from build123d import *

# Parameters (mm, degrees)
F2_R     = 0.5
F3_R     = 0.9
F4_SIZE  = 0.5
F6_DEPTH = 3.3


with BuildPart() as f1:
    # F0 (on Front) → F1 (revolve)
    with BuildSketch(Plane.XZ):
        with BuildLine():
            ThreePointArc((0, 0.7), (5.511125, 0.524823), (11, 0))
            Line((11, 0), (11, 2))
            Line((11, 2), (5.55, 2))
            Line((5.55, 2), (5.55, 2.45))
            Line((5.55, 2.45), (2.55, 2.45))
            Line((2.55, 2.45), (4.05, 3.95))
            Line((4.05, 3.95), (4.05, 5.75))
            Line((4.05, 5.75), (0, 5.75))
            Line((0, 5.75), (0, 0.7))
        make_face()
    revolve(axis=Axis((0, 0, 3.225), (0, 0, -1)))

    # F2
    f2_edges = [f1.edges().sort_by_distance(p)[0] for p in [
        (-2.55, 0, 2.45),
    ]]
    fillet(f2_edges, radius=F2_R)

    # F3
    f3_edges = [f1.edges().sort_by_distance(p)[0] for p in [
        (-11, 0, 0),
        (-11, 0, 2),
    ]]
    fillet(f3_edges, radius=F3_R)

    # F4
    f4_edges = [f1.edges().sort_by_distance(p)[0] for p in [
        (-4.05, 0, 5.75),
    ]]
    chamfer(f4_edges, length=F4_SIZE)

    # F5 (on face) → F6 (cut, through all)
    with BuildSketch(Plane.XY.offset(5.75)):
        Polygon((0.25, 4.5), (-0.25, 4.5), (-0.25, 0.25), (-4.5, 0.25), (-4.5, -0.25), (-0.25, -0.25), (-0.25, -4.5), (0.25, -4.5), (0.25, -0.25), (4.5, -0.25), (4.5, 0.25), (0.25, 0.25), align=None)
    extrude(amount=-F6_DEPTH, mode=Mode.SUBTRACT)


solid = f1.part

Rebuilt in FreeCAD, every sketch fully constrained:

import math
import FreeCAD as App
import Part
import Sketcher
from FreeCAD import Vector
Q = App.Units.Quantity


def edges_at(feature, points):
    """Names of the edges that pass closest to the given points."""
    edges = feature.Shape.Edges
    near = lambda p: min(range(len(edges)), key=lambda i: edges[i].distToShape(Part.Vertex(*p))[0])
    return sorted({f"Edge{near(p) + 1}" for p in points})

doc = App.newDocument("Part")
params = doc.addObject("Spreadsheet::Sheet", "Params")
for row, (alias, value) in enumerate([
    ("sketch1_width", "3 mm"),
    ("sketch1_height", "2 mm"),
    ("sketch1_height2", "1.8 mm"),
    ("sketch1_width2", "5.45 mm"),
    ("sketch1_width3", "4.05 mm"),
    ("revolution_angle", "360 deg"),
    ("fillet_radius", "0.5 mm"),
    ("fillet2_radius", "0.9 mm"),
    ("chamfer_size", "0.5 mm"),
    ("sketch2_width", "0.5 mm"),
    ("pocket1_length", "3.3 mm"),
], start=1):
    params.set(f"A{row}", alias)
    params.set(f"B{row}", "=" + value)
    params.setAlias(f"B{row}", alias)

body = doc.addObject("PartDesign::Body", "Body")

# Sketch on XZ plane
sketch1 = body.newObject("Sketcher::SketchObject", "Sketch")
sketch1.AttachmentSupport = (doc.getObject("XZ_Plane"), [""])
sketch1.MapMode = "FlatFace"
sketch1.addGeometry(Part.ArcOfCircle(Part.Circle(Vector(0, -86.08, 0), Vector(0, 0, 1), 86.78), math.radians(82.72), math.radians(90)), False)
sketch1.addGeometry(Part.LineSegment(Vector(11, 0, 0), Vector(11, 2, 0)), False)
sketch1.addGeometry(Part.LineSegment(Vector(11, 2, 0), Vector(5.55, 2, 0)), False)
sketch1.addGeometry(Part.LineSegment(Vector(5.55, 2, 0), Vector(5.55, 2.45, 0)), False)
sketch1.addGeometry(Part.LineSegment(Vector(5.55, 2.45, 0), Vector(2.55, 2.45, 0)), False)
sketch1.addGeometry(Part.LineSegment(Vector(2.55, 2.45, 0), Vector(4.05, 3.95, 0)), False)
sketch1.addGeometry(Part.LineSegment(Vector(4.05, 3.95, 0), Vector(4.05, 5.75, 0)), False)
sketch1.addGeometry(Part.LineSegment(Vector(4.05, 5.75, 0), Vector(0, 5.75, 0)), False)
sketch1.addGeometry(Part.LineSegment(Vector(0, 5.75, 0), Vector(0, 0.7, 0)), False)
sketch1.addConstraint(Sketcher.Constraint("Coincident", 0, 1, 1, 1))
sketch1.addConstraint(Sketcher.Constraint("Coincident", 1, 2, 2, 1))
sketch1.addConstraint(Sketcher.Constraint("Coincident", 2, 2, 3, 1))
sketch1.addConstraint(Sketcher.Constraint("Coincident", 3, 2, 4, 1))
sketch1.addConstraint(Sketcher.Constraint("Coincident", 4, 2, 5, 1))
sketch1.addConstraint(Sketcher.Constraint("Coincident", 5, 2, 6, 1))
sketch1.addConstraint(Sketcher.Constraint("Coincident", 6, 2, 7, 1))
sketch1.addConstraint(Sketcher.Constraint("Coincident", 7, 2, 8, 1))
sketch1.addConstraint(Sketcher.Constraint("Coincident", 8, 2, 0, 2))
sketch1.addConstraint(Sketcher.Constraint("Vertical", 1))
sketch1.addConstraint(Sketcher.Constraint("Horizontal", 2))
sketch1.addConstraint(Sketcher.Constraint("Vertical", 3))
sketch1.addConstraint(Sketcher.Constraint("Horizontal", 4))
sketch1.addConstraint(Sketcher.Constraint("Vertical", 6))
sketch1.addConstraint(Sketcher.Constraint("Horizontal", 7))
sketch1.addConstraint(Sketcher.Constraint("Vertical", 8))
sketch1.addConstraint(Sketcher.Constraint("PointOnObject", 0, 1, -1))
sketch1.addConstraint(Sketcher.Constraint("PointOnObject", 7, 2, -2))
sketch1.addConstraint(Sketcher.Constraint("DistanceX", 4, 2, 4, 1, 3.0))
sketch1.addConstraint(Sketcher.Constraint("DistanceY", 1, 1, 1, 2, 2.0))
sketch1.addConstraint(Sketcher.Constraint("Angle", 5, Q("45 deg")))
sketch1.addConstraint(Sketcher.Constraint("DistanceY", 6, 1, 6, 2, 1.8))
sketch1.addConstraint(Sketcher.Constraint("DistanceX", -1, 1, 0, 1, 11.0))
sketch1.addConstraint(Sketcher.Constraint("DistanceX", 2, 2, 2, 1, 5.45))
sketch1.addConstraint(Sketcher.Constraint("DistanceX", 7, 2, 7, 1, 4.05))
sketch1.addConstraint(Sketcher.Constraint("DistanceY", 3, 1, 3, 2, 0.45))
sketch1.addConstraint(Sketcher.Constraint("DistanceY", 8, 2, 8, 1, 5.05))
sketch1.addConstraint(Sketcher.Constraint("Radius", 0, 86.778668))
sketch1.setExpression("Constraints[18]", "Params.sketch1_width")
sketch1.setExpression("Constraints[19]", "Params.sketch1_height")
sketch1.setExpression("Constraints[21]", "Params.sketch1_height2")
sketch1.setExpression("Constraints[23]", "Params.sketch1_width2")
sketch1.setExpression("Constraints[24]", "Params.sketch1_width3")
revolution = body.newObject("PartDesign::Revolution", "Revolution")
revolution.Profile = sketch1
revolution.ReferenceAxis = (sketch1, ["V_Axis"])
revolution.setExpression("Angle", "Params.revolution_angle")
doc.recompute()

fillet = body.newObject("PartDesign::Fillet", "Fillet")
fillet.Base = (revolution, edges_at(revolution, [(-2.55, 0, 2.45)]))
fillet.setExpression("Radius", "Params.fillet_radius")
doc.recompute()

fillet2 = body.newObject("PartDesign::Fillet", "Fillet001")
fillet2.Base = (fillet, edges_at(fillet, [(-11, 0, 0), (-11, 0, 2)]))
fillet2.setExpression("Radius", "Params.fillet2_radius")
doc.recompute()

chamfer = body.newObject("PartDesign::Chamfer", "Chamfer")
chamfer.Base = (fillet2, edges_at(fillet2, [(-4.05, 0, 5.75)]))
chamfer.setExpression("Size", "Params.chamfer_size")

# Sketch on XY plane
sketch2 = body.newObject("Sketcher::SketchObject", "Sketch001")
sketch2.AttachmentSupport = (doc.getObject("XY_Plane"), [""])
sketch2.MapMode = "FlatFace"
sketch2.AttachmentOffset = App.Placement(Vector(0, 0, 5.75), App.Rotation())
sketch2.addGeometry(Part.LineSegment(Vector(0.2, 4.5, 0), Vector(-0.2, 4.5, 0)), False)
sketch2.addGeometry(Part.LineSegment(Vector(-0.2, 4.5, 0), Vector(-0.2, 0.2, 0)), False)
sketch2.addGeometry(Part.LineSegment(Vector(-0.2, 0.2, 0), Vector(-4.5, 0.2, 0)), False)
sketch2.addGeometry(Part.LineSegment(Vector(-4.5, 0.2, 0), Vector(-4.5, -0.2, 0)), False)
sketch2.addGeometry(Part.LineSegment(Vector(-4.5, -0.2, 0), Vector(-0.2, -0.2, 0)), False)
sketch2.addGeometry(Part.LineSegment(Vector(-0.2, -0.2, 0), Vector(-0.2, -4.5, 0)), False)
sketch2.addGeometry(Part.LineSegment(Vector(-0.2, -4.5, 0), Vector(0.2, -4.5, 0)), False)
sketch2.addGeometry(Part.LineSegment(Vector(0.2, -4.5, 0), Vector(0.2, -0.2, 0)), False)
sketch2.addGeometry(Part.LineSegment(Vector(0.2, -0.2, 0), Vector(4.5, -0.2, 0)), False)
sketch2.addGeometry(Part.LineSegment(Vector(4.5, -0.2, 0), Vector(4.5, 0.2, 0)), False)
sketch2.addGeometry(Part.LineSegment(Vector(4.5, 0.2, 0), Vector(0.2, 0.2, 0)), False)
sketch2.addGeometry(Part.LineSegment(Vector(0.2, 0.2, 0), Vector(0.2, 4.5, 0)), False)
sketch2.addConstraint(Sketcher.Constraint("Coincident", 0, 2, 1, 1))
sketch2.addConstraint(Sketcher.Constraint("Coincident", 1, 2, 2, 1))
sketch2.addConstraint(Sketcher.Constraint("Coincident", 2, 2, 3, 1))
sketch2.addConstraint(Sketcher.Constraint("Coincident", 3, 2, 4, 1))
sketch2.addConstraint(Sketcher.Constraint("Coincident", 4, 2, 5, 1))
sketch2.addConstraint(Sketcher.Constraint("Coincident", 5, 2, 6, 1))
sketch2.addConstraint(Sketcher.Constraint("Coincident", 6, 2, 7, 1))
sketch2.addConstraint(Sketcher.Constraint("Coincident", 7, 2, 8, 1))
sketch2.addConstraint(Sketcher.Constraint("Coincident", 8, 2, 9, 1))
sketch2.addConstraint(Sketcher.Constraint("Coincident", 9, 2, 10, 1))
sketch2.addConstraint(Sketcher.Constraint("Coincident", 10, 2, 11, 1))
sketch2.addConstraint(Sketcher.Constraint("Coincident", 11, 2, 0, 1))
sketch2.addConstraint(Sketcher.Constraint("Horizontal", 0))
sketch2.addConstraint(Sketcher.Constraint("Vertical", 1))
sketch2.addConstraint(Sketcher.Constraint("Horizontal", 2))
sketch2.addConstraint(Sketcher.Constraint("Vertical", 3))
sketch2.addConstraint(Sketcher.Constraint("Horizontal", 4))
sketch2.addConstraint(Sketcher.Constraint("Vertical", 5))
sketch2.addConstraint(Sketcher.Constraint("Horizontal", 6))
sketch2.addConstraint(Sketcher.Constraint("Vertical", 7))
sketch2.addConstraint(Sketcher.Constraint("Horizontal", 8))
sketch2.addConstraint(Sketcher.Constraint("Vertical", 9))
sketch2.addConstraint(Sketcher.Constraint("Horizontal", 10))
sketch2.addConstraint(Sketcher.Constraint("Vertical", 11))
sketch2.addConstraint(Sketcher.Constraint("Symmetric", 0, 2, 6, 2, -1, 1))
sketch2.addConstraint(Sketcher.Constraint("Symmetric", 2, 2, 8, 2, -1, 1))
sketch2.addConstraint(Sketcher.Constraint("Symmetric", 4, 2, 10, 2, -1, 1))
sketch2.addConstraint(Sketcher.Constraint("Symmetric", 4, 2, 7, 2, -2))
sketch2.addConstraint(Sketcher.Constraint("Equal", 10, 1))
sketch2.addConstraint(Sketcher.Constraint("Equal", 6, 3))
sketch2.addConstraint(Sketcher.Constraint("DistanceX", 0, 2, 0, 1, 0.5))
sketch2.addConstraint(Sketcher.Constraint("DistanceY", 5, 2, 0, 2, 9.0))
sketch2.setExpression("Constraints[30]", "Params.sketch2_width")
pocket1 = body.newObject("PartDesign::Pocket", "Pocket")
pocket1.Profile = sketch2
pocket1.setExpression("Length", "Params.pocket1_length")

doc.recompute()
